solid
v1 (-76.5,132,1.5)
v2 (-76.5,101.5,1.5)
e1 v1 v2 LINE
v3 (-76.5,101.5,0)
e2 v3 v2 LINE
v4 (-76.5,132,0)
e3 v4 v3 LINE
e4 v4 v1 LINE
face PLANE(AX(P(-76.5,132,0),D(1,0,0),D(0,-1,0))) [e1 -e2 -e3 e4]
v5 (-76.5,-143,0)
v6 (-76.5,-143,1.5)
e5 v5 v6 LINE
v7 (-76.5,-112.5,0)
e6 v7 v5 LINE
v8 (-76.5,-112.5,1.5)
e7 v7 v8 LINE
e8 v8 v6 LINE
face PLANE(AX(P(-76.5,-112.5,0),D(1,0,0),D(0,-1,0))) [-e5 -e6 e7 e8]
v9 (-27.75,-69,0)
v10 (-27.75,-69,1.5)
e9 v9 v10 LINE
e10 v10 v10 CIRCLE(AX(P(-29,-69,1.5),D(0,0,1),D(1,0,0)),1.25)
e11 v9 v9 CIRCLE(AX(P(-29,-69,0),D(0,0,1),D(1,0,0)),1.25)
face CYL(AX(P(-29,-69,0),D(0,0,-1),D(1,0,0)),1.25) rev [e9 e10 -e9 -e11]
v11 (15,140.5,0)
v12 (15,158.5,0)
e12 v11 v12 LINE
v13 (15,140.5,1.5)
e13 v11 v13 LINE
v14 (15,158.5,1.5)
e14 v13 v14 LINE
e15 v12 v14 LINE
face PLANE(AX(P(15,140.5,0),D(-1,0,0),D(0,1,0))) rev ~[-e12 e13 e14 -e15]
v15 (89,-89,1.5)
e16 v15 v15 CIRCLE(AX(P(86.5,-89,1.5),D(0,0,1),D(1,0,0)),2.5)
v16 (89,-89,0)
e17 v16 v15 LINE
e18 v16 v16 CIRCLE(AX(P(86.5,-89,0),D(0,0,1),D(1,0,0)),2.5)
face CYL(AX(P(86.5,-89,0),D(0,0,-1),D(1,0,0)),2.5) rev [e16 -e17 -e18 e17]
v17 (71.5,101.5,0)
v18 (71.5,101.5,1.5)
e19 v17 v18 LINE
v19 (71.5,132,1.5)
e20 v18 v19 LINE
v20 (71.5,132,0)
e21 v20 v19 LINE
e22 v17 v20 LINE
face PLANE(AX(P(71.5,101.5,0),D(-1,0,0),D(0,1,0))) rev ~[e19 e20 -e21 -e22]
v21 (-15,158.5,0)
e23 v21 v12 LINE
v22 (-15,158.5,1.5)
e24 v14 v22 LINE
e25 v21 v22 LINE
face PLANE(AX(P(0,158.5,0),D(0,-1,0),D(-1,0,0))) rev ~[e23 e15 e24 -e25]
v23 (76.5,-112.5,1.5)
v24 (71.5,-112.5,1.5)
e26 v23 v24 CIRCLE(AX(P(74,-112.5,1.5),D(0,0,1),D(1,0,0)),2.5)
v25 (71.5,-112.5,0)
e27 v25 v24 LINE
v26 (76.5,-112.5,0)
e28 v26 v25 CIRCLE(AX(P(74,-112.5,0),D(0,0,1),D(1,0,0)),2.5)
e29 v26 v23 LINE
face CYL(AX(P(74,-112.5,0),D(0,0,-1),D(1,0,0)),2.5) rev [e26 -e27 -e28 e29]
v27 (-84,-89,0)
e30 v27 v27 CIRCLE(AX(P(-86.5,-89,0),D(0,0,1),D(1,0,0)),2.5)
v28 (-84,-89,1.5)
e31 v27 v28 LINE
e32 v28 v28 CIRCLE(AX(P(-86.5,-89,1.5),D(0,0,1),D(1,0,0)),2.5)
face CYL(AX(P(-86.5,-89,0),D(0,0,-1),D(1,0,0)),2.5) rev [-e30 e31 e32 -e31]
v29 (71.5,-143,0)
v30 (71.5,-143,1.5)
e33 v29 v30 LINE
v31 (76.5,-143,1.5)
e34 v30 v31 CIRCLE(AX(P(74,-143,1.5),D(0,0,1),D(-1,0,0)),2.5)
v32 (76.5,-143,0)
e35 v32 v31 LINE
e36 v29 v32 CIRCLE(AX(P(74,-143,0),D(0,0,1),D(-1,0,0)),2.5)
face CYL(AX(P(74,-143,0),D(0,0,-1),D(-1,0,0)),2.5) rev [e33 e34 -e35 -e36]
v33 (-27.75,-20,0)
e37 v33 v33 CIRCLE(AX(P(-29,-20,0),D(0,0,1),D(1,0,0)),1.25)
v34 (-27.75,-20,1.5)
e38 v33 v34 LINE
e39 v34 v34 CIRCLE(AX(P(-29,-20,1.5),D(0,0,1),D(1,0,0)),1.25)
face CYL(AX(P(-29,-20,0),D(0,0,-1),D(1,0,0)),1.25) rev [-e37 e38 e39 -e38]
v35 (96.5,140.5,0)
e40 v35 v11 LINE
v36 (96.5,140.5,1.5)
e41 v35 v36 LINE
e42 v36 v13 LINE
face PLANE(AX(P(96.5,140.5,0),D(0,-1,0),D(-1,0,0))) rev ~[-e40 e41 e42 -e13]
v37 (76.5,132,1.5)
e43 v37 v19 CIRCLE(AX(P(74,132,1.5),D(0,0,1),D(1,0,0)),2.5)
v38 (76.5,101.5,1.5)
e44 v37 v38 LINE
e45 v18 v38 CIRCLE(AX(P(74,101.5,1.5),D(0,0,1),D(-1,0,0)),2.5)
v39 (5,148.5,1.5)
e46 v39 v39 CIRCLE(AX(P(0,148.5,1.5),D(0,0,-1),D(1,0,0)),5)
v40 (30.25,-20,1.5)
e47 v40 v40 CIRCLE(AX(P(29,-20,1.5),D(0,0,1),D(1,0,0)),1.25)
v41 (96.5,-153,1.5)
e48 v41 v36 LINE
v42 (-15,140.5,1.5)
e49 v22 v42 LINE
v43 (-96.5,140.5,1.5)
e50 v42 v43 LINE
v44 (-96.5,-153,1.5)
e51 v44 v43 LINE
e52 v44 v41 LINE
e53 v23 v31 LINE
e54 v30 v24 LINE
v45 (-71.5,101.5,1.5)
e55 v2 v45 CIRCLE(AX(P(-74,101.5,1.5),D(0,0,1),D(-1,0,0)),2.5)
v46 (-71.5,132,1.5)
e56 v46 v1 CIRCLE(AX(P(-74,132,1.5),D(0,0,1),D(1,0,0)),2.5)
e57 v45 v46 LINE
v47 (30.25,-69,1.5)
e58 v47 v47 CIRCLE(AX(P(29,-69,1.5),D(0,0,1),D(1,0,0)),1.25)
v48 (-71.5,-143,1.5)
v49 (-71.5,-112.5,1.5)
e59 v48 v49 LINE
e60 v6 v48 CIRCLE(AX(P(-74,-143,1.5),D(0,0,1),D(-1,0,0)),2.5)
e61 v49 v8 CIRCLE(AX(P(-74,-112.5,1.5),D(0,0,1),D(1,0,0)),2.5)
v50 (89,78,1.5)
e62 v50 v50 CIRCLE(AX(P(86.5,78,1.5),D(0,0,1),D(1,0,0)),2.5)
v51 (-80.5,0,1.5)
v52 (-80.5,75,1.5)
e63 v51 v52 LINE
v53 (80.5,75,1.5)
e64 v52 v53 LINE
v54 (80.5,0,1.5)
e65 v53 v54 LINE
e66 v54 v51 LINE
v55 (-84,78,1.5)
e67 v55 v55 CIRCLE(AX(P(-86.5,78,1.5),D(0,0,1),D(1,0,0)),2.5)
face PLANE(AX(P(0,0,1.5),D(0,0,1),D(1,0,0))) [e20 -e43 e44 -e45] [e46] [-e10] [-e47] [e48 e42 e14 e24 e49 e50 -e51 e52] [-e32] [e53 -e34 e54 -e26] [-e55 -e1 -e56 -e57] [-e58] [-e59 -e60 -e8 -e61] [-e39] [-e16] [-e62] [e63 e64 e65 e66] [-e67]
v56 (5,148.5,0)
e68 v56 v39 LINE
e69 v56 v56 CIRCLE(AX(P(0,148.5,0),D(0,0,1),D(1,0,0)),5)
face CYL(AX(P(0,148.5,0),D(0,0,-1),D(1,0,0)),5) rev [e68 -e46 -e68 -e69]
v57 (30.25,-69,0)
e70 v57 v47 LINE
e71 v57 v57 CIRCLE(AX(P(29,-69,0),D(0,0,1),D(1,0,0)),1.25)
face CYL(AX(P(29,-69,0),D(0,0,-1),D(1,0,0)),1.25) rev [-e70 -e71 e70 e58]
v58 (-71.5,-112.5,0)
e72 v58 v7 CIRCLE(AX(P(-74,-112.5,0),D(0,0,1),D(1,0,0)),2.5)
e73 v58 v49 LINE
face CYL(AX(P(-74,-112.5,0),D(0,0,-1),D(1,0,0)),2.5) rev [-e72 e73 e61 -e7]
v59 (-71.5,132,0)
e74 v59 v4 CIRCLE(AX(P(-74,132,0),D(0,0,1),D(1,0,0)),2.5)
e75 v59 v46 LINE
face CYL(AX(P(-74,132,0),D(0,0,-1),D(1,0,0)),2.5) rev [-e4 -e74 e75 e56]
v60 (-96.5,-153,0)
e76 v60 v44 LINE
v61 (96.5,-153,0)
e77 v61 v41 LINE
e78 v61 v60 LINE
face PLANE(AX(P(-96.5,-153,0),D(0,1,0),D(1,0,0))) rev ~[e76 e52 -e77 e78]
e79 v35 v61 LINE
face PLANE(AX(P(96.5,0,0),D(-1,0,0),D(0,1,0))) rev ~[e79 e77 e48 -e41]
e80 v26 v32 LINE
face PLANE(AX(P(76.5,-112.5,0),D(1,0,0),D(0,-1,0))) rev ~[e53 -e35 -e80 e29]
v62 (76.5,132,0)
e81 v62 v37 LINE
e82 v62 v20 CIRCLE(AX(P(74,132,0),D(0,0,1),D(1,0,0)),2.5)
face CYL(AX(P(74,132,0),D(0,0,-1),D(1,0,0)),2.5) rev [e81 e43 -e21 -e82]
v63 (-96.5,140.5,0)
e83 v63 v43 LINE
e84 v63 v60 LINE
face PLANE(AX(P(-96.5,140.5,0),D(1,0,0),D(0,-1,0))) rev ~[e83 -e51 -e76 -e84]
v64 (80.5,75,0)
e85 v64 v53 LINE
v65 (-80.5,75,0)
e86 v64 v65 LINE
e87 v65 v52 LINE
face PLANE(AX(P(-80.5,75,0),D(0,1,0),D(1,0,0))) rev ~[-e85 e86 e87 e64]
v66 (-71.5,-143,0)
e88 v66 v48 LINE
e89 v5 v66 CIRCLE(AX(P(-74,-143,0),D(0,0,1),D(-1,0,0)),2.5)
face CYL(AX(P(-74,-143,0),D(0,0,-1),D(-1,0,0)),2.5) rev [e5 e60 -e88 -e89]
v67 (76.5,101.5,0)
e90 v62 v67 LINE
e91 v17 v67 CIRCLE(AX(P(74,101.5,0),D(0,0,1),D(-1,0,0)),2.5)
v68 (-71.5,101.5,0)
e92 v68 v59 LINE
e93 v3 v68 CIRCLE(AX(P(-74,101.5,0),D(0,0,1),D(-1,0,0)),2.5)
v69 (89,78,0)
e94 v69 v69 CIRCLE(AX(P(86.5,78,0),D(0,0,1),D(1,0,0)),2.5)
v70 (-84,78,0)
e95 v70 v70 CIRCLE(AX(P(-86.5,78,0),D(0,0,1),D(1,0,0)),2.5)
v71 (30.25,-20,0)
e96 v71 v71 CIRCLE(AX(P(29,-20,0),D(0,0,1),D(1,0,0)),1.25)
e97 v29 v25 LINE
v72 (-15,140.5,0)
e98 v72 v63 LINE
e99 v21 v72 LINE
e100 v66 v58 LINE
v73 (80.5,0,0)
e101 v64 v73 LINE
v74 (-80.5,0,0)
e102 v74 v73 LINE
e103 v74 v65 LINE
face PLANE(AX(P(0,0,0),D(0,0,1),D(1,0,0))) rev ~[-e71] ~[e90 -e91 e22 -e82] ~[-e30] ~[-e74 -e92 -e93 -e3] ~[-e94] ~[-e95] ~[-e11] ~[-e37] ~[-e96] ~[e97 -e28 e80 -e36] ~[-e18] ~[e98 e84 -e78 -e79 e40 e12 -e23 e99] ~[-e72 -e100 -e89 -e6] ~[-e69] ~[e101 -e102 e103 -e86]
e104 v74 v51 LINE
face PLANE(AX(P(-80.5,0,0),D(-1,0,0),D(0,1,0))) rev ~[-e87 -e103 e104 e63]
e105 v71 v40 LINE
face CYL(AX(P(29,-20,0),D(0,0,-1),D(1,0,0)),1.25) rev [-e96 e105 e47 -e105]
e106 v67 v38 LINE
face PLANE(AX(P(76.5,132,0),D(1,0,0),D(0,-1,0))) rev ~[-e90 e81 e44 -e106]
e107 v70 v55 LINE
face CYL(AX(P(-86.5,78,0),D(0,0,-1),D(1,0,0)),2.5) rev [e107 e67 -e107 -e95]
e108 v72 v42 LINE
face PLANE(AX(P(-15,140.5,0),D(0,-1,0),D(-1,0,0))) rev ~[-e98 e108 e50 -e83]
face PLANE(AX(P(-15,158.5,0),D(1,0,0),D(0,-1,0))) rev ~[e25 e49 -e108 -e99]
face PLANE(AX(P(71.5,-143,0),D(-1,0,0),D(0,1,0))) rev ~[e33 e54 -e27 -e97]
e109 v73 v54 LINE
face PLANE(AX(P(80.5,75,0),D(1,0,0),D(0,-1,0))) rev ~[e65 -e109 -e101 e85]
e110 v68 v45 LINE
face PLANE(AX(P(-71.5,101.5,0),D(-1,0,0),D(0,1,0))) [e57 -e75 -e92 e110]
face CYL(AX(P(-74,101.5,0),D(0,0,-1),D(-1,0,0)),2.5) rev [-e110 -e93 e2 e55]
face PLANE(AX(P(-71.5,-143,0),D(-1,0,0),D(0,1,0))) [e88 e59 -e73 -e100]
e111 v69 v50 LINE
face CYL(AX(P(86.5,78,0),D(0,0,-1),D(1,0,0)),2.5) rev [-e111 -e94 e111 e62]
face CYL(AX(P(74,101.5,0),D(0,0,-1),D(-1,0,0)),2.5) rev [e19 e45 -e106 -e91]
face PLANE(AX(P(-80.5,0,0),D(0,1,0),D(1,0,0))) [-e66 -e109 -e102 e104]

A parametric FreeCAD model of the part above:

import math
import FreeCAD as App
import Part
import Sketcher


def add_polygon(sketch, points):
    """Adds a closed chain of lines whose ends are joined by coincident constraints."""
    first, n = sketch.GeometryCount, len(points)
    for a, b in zip(points, points[1:] + points[:1]):
        sketch.addGeometry(Part.LineSegment(App.Vector(*a, 0), App.Vector(*b, 0)), False)
    for i in range(n):
        sketch.addConstraint(Sketcher.Constraint("Coincident", first + i, 2, first + (i + 1) % n, 1))

doc = App.newDocument("Part")
body = doc.addObject("PartDesign::Body", "Body")

# Sketch on XY plane
sketch1 = body.newObject("Sketcher::SketchObject", "Sketch")
sketch1.AttachmentSupport = (doc.getObject("XY_Plane"), [""])
sketch1.MapMode = "FlatFace"
add_polygon(sketch1, [(-96.5, 140.5), (-96.5, -153), (96.5, -153), (96.5, 140.5), (15, 140.5), (15, 158.5), (-15, 158.5), (-15, 140.5)])  # lines 0-7
sketch1.addGeometry(Part.Circle(App.Vector(0, 148.5, 0), App.Vector(0, 0, 1), 5), False)  # 8
add_polygon(sketch1, [(-80.5, 75), (80.5, 75), (80.5, 0), (-80.5, 0)])  # lines 9-12
sketch1.addGeometry(Part.Circle(App.Vector(-86.5, 78, 0), App.Vector(0, 0, 1), 2.5), False)  # 13
sketch1.addGeometry(Part.ArcOfCircle(Part.Circle(App.Vector(-74, 132, 0), App.Vector(0, 0, 1), 2.5), math.radians(0), math.radians(180)), False)  # 14
sketch1.addGeometry(Part.LineSegment(App.Vector(-71.5, 132, 0), App.Vector(-71.5, 101.5, 0)), False)  # 15
sketch1.addGeometry(Part.ArcOfCircle(Part.Circle(App.Vector(-74, 101.5, 0), App.Vector(0, 0, 1), 2.5), math.radians(180), math.radians(360)), False)  # 16
sketch1.addGeometry(Part.LineSegment(App.Vector(-76.5, 101.5, 0), App.Vector(-76.5, 132, 0)), False)  # 17
sketch1.addGeometry(Part.ArcOfCircle(Part.Circle(App.Vector(74, 101.5, 0), App.Vector(0, 0, 1), 2.5), math.radians(180), math.radians(360)), False)  # 18
sketch1.addGeometry(Part.LineSegment(App.Vector(71.5, 101.5, 0), App.Vector(71.5, 132, 0)), False)  # 19
sketch1.addGeometry(Part.ArcOfCircle(Part.Circle(App.Vector(74, 132, 0), App.Vector(0, 0, 1), 2.5), math.radians(0), math.radians(180)), False)  # 20
sketch1.addGeometry(Part.LineSegment(App.Vector(76.5, 132, 0), App.Vector(76.5, 101.5, 0)), False)  # 21
sketch1.addGeometry(Part.Circle(App.Vector(86.5, 78, 0), App.Vector(0, 0, 1), 2.5), False)  # 22
sketch1.addGeometry(Part.Circle(App.Vector(-29, -20, 0), App.Vector(0, 0, 1), 1.2), False)  # 23
sketch1.addGeometry(Part.ArcOfCircle(Part.Circle(App.Vector(-74, -112.5, 0), App.Vector(0, 0, 1), 2.5), math.radians(0), math.radians(180)), False)  # 24
sketch1.addGeometry(Part.LineSegment(App.Vector(-71.5, -112.5, 0), App.Vector(-71.5, -143, 0)), False)  # 25
sketch1.addGeometry(Part.ArcOfCircle(Part.Circle(App.Vector(-74, -143, 0), App.Vector(0, 0, 1), 2.5), math.radians(180), math.radians(360)), False)  # 26
sketch1.addGeometry(Part.LineSegment(App.Vector(-76.5, -143, 0), App.Vector(-76.5, -112.5, 0)), False)  # 27
sketch1.addGeometry(Part.Circle(App.Vector(-86.5, -89, 0), App.Vector(0, 0, 1), 2.5), False)  # 28
sketch1.addGeometry(Part.Circle(App.Vector(-29, -69, 0), App.Vector(0, 0, 1), 1.2), False)  # 29
sketch1.addGeometry(Part.Circle(App.Vector(29, -20, 0), App.Vector(0, 0, 1), 1.2), False)  # 30
sketch1.addGeometry(Part.Circle(App.Vector(29, -69, 0), App.Vector(0, 0, 1), 1.2), False)  # 31
sketch1.addGeometry(Part.ArcOfCircle(Part.Circle(App.Vector(74, -112.5, 0), App.Vector(0, 0, 1), 2.5), math.radians(0), math.radians(180)), False)  # 32
sketch1.addGeometry(Part.LineSegment(App.Vector(76.5, -112.5, 0), App.Vector(76.5, -143, 0)), False)  # 33
sketch1.addGeometry(Part.ArcOfCircle(Part.Circle(App.Vector(74, -143, 0), App.Vector(0, 0, 1), 2.5), math.radians(180), math.radians(360)), False)  # 34
sketch1.addGeometry(Part.LineSegment(App.Vector(71.5, -143, 0), App.Vector(71.5, -112.5, 0)), False)  # 35
sketch1.addGeometry(Part.Circle(App.Vector(86.5, -89, 0), App.Vector(0, 0, 1), 2.5), False)  # 36
sketch1.addConstraint([
    Sketcher.Constraint("Tangent", 14, 1, 15, 1),
    Sketcher.Constraint("Tangent", 15, 2, 16, 2),
    Sketcher.Constraint("Tangent", 16, 1, 17, 1),
    Sketcher.Constraint("Tangent", 17, 2, 14, 2),
    Sketcher.Constraint("Tangent", 18, 1, 19, 1),
    Sketcher.Constraint("Tangent", 19, 2, 20, 2),
    Sketcher.Constraint("Tangent", 20, 1, 21, 1),
    Sketcher.Constraint("Tangent", 21, 2, 18, 2),
    Sketcher.Constraint("Tangent", 24, 1, 25, 1),
    Sketcher.Constraint("Tangent", 25, 2, 26, 2),
    Sketcher.Constraint("Tangent", 26, 1, 27, 1),
    Sketcher.Constraint("Tangent", 27, 2, 24, 2),
    Sketcher.Constraint("Tangent", 32, 1, 33, 1),
    Sketcher.Constraint("Tangent", 33, 2, 34, 2),
    Sketcher.Constraint("Tangent", 34, 1, 35, 1),
    Sketcher.Constraint("Tangent", 35, 2, 32, 2),
    Sketcher.Constraint("Vertical", 0),
    Sketcher.Constraint("Horizontal", 1),
    Sketcher.Constraint("Vertical", 2),
    Sketcher.Constraint("Horizontal", 3),
    Sketcher.Constraint("Vertical", 4),
    Sketcher.Constraint("Horizontal", 5),
    Sketcher.Constraint("Vertical", 6),
    Sketcher.Constraint("Horizontal", 7),
    Sketcher.Constraint("Horizontal", 9),
    Sketcher.Constraint("Vertical", 10),
    Sketcher.Constraint("Horizontal", 11),
    Sketcher.Constraint("Vertical", 12),
    Sketcher.Constraint("Vertical", 15),
    Sketcher.Constraint("Vertical", 17),
    Sketcher.Constraint("Vertical", 19),
    Sketcher.Constraint("Vertical", 21),
    Sketcher.Constraint("Vertical", 25),
    Sketcher.Constraint("Vertical", 27),
    Sketcher.Constraint("Vertical", 33),
    Sketcher.Constraint("Vertical", 35),
    Sketcher.Constraint("Equal", 13, 14),
    Sketcher.Constraint("Equal", 16, 18),
    Sketcher.Constraint("Equal", 20, 22),
    Sketcher.Constraint("Equal", 22, 24),
    Sketcher.Constraint("Equal", 26, 28),
    Sketcher.Constraint("Equal", 23, 29),
    Sketcher.Constraint("Equal", 29, 30),
    Sketcher.Constraint("Equal", 30, 31),
    Sketcher.Constraint("Equal", 28, 32),
    Sketcher.Constraint("Equal", 34, 36),
    Sketcher.Constraint("Symmetric", 10, 2, 11, 2, -1, 1),
    Sketcher.Constraint("Symmetric", 16, 3, 18, 3, -2),
    Sketcher.Constraint("Symmetric", 13, 3, 22, 3, -2),
    Sketcher.Constraint("Symmetric", 23, 3, 30, 3, -2),
    Sketcher.Constraint("Symmetric", 29, 3, 31, 3, -2),
    Sketcher.Constraint("Symmetric", 24, 3, 32, 3, -2),
    Sketcher.Constraint("Symmetric", 28, 3, 36, 3, -2),
    Sketcher.Constraint("Symmetric", 3, 2, 6, 2, -2),
    Sketcher.Constraint("PointOnObject", 8, 3, -2),
    Sketcher.Constraint("Horizontal", 14, 3, 20, 3),
    Sketcher.Constraint("Horizontal", 26, 3, 34, 3),
    Sketcher.Constraint("Vertical", 16, 3, 24, 3),
    Sketcher.Constraint("Vertical", 13, 3, 28, 3),
    Sketcher.Constraint("Vertical", 23, 3, 29, 3),
    Sketcher.Constraint("Equal", 3, 7),
    Sketcher.Constraint("Equal", 21, 25),
    Sketcher.Constraint("Diameter", 8, 10.0),
    Sketcher.Constraint("Diameter", 13, 5.0),
    Sketcher.Constraint("Diameter", 23, 2.5),
    Sketcher.Constraint("DistanceX", 1, 1, 1, 2, 193.0),
    Sketcher.Constraint("DistanceX", 5, 2, 5, 1, 30.0),
    Sketcher.Constraint("DistanceY", 4, 1, 4, 2, 18.0),
    Sketcher.Constraint("DistanceY", 10, 2, 10, 1, 75.0),
    Sketcher.Constraint("DistanceY", 0, 2, 0, 1, 293.5),
    Sketcher.Constraint("DistanceY", 15, 2, 15, 1, 30.5),
    Sketcher.Constraint("DistanceY", 23, 3, -1, 1, 20.0),
    Sketcher.Constraint("DistanceY", 26, 3, -1, 1, 143.0),
    Sketcher.Constraint("DistanceX", 16, 3, 18, 3, 148.0),
    Sketcher.Constraint("DistanceY", 28, 3, 13, 3, 167.0),
    Sketcher.Constraint("DistanceY", 29, 3, 23, 3, 49.0),
    Sketcher.Constraint("DistanceY", 28, 3, 29, 3, 20.0),
    Sketcher.Constraint("DistanceX", 23, 3, 30, 3, 58.0),
    Sketcher.Constraint("DistanceY", 0, 2, 26, 3, 10.0),
    Sketcher.Constraint("DistanceX", 0, 2, 28, 3, 10.0),
    Sketcher.Constraint("DistanceY", 8, 3, 4, 2, 10.0),
    Sketcher.Constraint("DistanceX", 9, 2, 22, 3, 6.0),
    Sketcher.Constraint("DistanceY", 20, 3, 2, 2, 8.5),
])
pad1 = body.newObject("PartDesign::Pad", "Pad")
pad1.Profile = sketch1
pad1.Length = 1.5

doc.recompute()
